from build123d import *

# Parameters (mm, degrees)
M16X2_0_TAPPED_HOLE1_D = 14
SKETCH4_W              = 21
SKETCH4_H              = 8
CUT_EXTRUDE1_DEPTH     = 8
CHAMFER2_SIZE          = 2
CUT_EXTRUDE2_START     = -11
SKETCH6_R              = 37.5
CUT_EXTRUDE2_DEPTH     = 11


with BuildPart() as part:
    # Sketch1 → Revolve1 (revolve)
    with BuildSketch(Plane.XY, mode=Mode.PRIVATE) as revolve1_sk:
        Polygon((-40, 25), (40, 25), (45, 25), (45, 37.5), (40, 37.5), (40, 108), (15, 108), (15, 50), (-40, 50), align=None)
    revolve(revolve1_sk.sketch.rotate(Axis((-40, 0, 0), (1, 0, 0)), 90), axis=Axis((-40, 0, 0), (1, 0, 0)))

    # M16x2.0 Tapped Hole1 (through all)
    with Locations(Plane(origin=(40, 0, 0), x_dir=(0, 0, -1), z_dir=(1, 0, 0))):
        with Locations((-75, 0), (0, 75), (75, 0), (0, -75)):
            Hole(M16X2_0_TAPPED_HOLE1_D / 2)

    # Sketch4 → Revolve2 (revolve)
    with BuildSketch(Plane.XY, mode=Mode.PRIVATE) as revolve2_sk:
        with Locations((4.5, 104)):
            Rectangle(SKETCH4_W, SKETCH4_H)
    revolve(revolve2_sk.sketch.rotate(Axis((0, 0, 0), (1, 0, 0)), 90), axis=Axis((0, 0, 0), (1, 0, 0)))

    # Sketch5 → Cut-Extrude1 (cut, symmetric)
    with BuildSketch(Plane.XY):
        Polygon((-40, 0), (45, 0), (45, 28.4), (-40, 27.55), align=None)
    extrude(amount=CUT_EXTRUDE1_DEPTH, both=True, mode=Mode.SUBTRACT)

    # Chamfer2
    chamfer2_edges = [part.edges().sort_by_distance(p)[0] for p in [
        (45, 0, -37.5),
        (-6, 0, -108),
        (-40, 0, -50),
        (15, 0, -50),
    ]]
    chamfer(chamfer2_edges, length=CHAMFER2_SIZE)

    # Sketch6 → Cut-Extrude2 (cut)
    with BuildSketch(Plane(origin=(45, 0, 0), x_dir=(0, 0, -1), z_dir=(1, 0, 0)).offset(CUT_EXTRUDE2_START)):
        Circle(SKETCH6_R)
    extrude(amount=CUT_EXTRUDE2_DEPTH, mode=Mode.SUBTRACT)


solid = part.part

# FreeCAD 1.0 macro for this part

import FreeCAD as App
import Part
import Sketcher

V = App.Vector
Q = App.Units.Quantity


def edges_at(feature, points):
    """Names of the edges that pass closest to the given points."""
    edges = feature.Shape.Edges
    near = lambda p: min(range(len(edges)), key=lambda i: edges[i].distToShape(Part.Vertex(*p))[0])
    return sorted({f"Edge{near(p) + 1}" for p in points})

doc = App.newDocument("Part")
body = doc.addObject("PartDesign::Body", "Body")

# Sketch on XY plane
sketch1 = doc.addObject("Sketcher::SketchObject", "Sketch")
body.addObject(sketch1)
sketch1.AttachmentSupport = (doc.XY_Plane, [""])
sketch1.MapMode = "FlatFace"
sketch1.addGeometry([
    Part.LineSegment(V(-40, 25, 0), V(45, 25, 0)),  # 0
    Part.LineSegment(V(45, 25, 0), V(45, 37.5, 0)),  # 1
    Part.LineSegment(V(45, 37.5, 0), V(40, 37.5, 0)),  # 2
    Part.LineSegment(V(40, 37.5, 0), V(40, 108, 0)),  # 3
    Part.LineSegment(V(40, 108, 0), V(15, 108, 0)),  # 4
    Part.LineSegment(V(15, 108, 0), V(15, 50, 0)),  # 5
    Part.LineSegment(V(15, 50, 0), V(-40, 50, 0)),  # 6
    Part.LineSegment(V(-40, 50, 0), V(-40, 25, 0)),  # 7
], False)
sketch1.addConstraint([
    Sketcher.Constraint("Coincident", 0, 2, 1, 1),
    Sketcher.Constraint("Coincident", 1, 2, 2, 1),
    Sketcher.Constraint("Coincident", 2, 2, 3, 1),
    Sketcher.Constraint("Coincident", 3, 2, 4, 1),
    Sketcher.Constraint("Coincident", 4, 2, 5, 1),
    Sketcher.Constraint("Coincident", 5, 2, 6, 1),
    Sketcher.Constraint("Coincident", 6, 2, 7, 1),
    Sketcher.Constraint("Coincident", 7, 2, 0, 1),
    Sketcher.Constraint("Horizontal", 0),
    Sketcher.Constraint("Vertical", 1),
    Sketcher.Constraint("Horizontal", 2),
    Sketcher.Constraint("Vertical", 3),
    Sketcher.Constraint("Horizontal", 4),
    Sketcher.Constraint("Vertical", 5),
    Sketcher.Constraint("Horizontal", 6),
    Sketcher.Constraint("Vertical", 7),
    Sketcher.Constraint("Equal", 4, 7),
    Sketcher.Constraint("DistanceX", 0, 1, 0, 2, Q("85 mm")),
    Sketcher.Constraint("DistanceX", 2, 2, 2, 1, Q("5 mm")),
    Sketcher.Constraint("DistanceX", 4, 2, 4, 1, Q("25 mm")),
    Sketcher.Constraint("DistanceY", 5, 2, 5, 1, Q("58 mm")),
    Sketcher.Constraint("DistanceY", 1, 1, 1, 2, Q("12.5 mm")),
    Sketcher.Constraint("DistanceX", -1, 1, 0, 2, Q("45 mm")),
    Sketcher.Constraint("DistanceY", -1, 1, 0, 2, Q("25 mm")),
])
revolution = doc.addObject("PartDesign::Revolution", "Revolution")
body.addObject(revolution)
revolution.Profile = sketch1
revolution.ReferenceAxis = (sketch1, ["H_Axis"])
revolution.Angle = 360

# Sketch on YZ plane
sketch2 = doc.addObject("Sketcher::SketchObject", "Sketch001")
body.addObject(sketch2)
sketch2.AttachmentSupport = (doc.YZ_Plane, [""])
sketch2.MapMode = "FlatFace"
sketch2.AttachmentOffset = App.Placement(V(0, 0, 40), App.Rotation())
sketch2.addGeometry([
    Part.Circle(V(0, 75, 0), V(0, 0, 1), 7),
    Part.Circle(V(75, 0, 0), V(0, 0, 1), 7),
    Part.Circle(V(0, -75, 0), V(0, 0, 1), 7),
    Part.Circle(V(-75, 0, 0), V(0, 0, 1), 7),
], False)
sketch2.addConstraint([
    Sketcher.Constraint("Equal", 0, 1),
    Sketcher.Constraint("Equal", 1, 2),
    Sketcher.Constraint("Equal", 2, 3),
    Sketcher.Constraint("Symmetric", 0, 3, 2, 3, -1, 1),
    Sketcher.Constraint("Symmetric", 1, 3, 3, 3, -1, 1),
    Sketcher.Constraint("PointOnObject", 0, 3, -2),
    Sketcher.Constraint("PointOnObject", 1, 3, -1),
    Sketcher.Constraint("Diameter", 0, Q("14 mm")),
    Sketcher.Constraint("DistanceY", -1, 1, 0, 3, Q("75 mm")),
    Sketcher.Constraint("DistanceX", -1, 1, 1, 3, Q("75 mm")),
])
doc.recompute()
hole = doc.addObject("PartDesign::Hole", "Hole")
body.addObject(hole)
hole.Profile = sketch2
hole.ThreadType = "None"
hole.Diameter = 14
hole.DepthType = "ThroughAll"

# Sketch on XY plane
sketch3 = doc.addObject("Sketcher::SketchObject", "Sketch002")
body.addObject(sketch3)
sketch3.AttachmentSupport = (doc.XY_Plane, [""])
sketch3.MapMode = "FlatFace"
sketch3.addGeometry([
    Part.LineSegment(V(-6, 108, 0), V(-6, 100, 0)),
    Part.LineSegment(V(-6, 100, 0), V(15, 100, 0)),
    Part.LineSegment(V(15, 100, 0), V(15, 108, 0)),
    Part.LineSegment(V(15, 108, 0), V(-6, 108, 0)),
], False)
sketch3.addConstraint([
    Sketcher.Constraint("Coincident", 0, 2, 1, 1),
    Sketcher.Constraint("Coincident", 1, 2, 2, 1),
    Sketcher.Constraint("Coincident", 2, 2, 3, 1),
    Sketcher.Constraint("Coincident", 3, 2, 0, 1),
    Sketcher.Constraint("Vertical", 0),
    Sketcher.Constraint("Horizontal", 1),
    Sketcher.Constraint("Vertical", 2),
    Sketcher.Constraint("Horizontal", 3),
    Sketcher.Constraint("DistanceX", 1, 1, 1, 2, Q("21 mm")),
    Sketcher.Constraint("DistanceY", 0, 2, 0, 1, Q("8 mm")),
    Sketcher.Constraint("DistanceX", 0, 2, -1, 1, Q("6 mm")),
    Sketcher.Constraint("DistanceY", -1, 1, 0, 2, Q("100 mm")),
])
revolution2 = doc.addObject("PartDesign::Revolution", "Revolution001")
body.addObject(revolution2)
revolution2.Profile = sketch3
revolution2.ReferenceAxis = (sketch3, ["H_Axis"])
revolution2.Angle = 360

# Sketch on XY plane
sketch4 = doc.addObject("Sketcher::SketchObject", "Sketch003")
body.addObject(sketch4)
sketch4.AttachmentSupport = (doc.XY_Plane, [""])
sketch4.MapMode = "FlatFace"
sketch4.addGeometry([
    Part.LineSegment(V(-40, 0, 0), V(45, 0, 0)),
    Part.LineSegment(V(45, 0, 0), V(45, 28.4, 0)),
    Part.LineSegment(V(45, 28.4, 0), V(-40, 27.55, 0)),
    Part.LineSegment(V(-40, 27.55, 0), V(-40, 0, 0)),
], False)
sketch4.addConstraint([
    Sketcher.Constraint("Coincident", 0, 2, 1, 1),
    Sketcher.Constraint("Coincident", 1, 2, 2, 1),
    Sketcher.Constraint("Coincident", 2, 2, 3, 1),
    Sketcher.Constraint("Coincident", 3, 2, 0, 1),
    Sketcher.Constraint("Horizontal", 0),
    Sketcher.Constraint("Vertical", 1),
    Sketcher.Constraint("Vertical", 3),
    Sketcher.Constraint("PointOnObject", 0, 2, -1),
    Sketcher.Constraint("DistanceX", 0, 1, 0, 2, Q("85 mm")),
    Sketcher.Constraint("DistanceY", 1, 1, 1, 2, Q("28.4 mm")),
    Sketcher.Constraint("DistanceX", -1, 1, 0, 2, Q("45 mm")),
    Sketcher.Constraint("DistanceY", 3, 2, 3, 1, Q("27.55 mm")),
])
pocket1 = doc.addObject("PartDesign::Pocket", "Pocket")
body.addObject(pocket1)
pocket1.Profile = sketch4
pocket1.Length = 16
pocket1.Midplane = True
doc.recompute()

chamfer = doc.addObject("PartDesign::Chamfer", "Chamfer")
body.addObject(chamfer)
chamfer.Base = (pocket1, edges_at(pocket1, [
    (45, 0, -37.5),
    (-6, 0, -108),
    (-40, 0, -50),
    (15, 0, -50),
]))
chamfer.Size = 2

# Sketch on YZ plane
sketch5 = doc.addObject("Sketcher::SketchObject", "Sketch004")
body.addObject(sketch5)
sketch5.AttachmentSupport = (doc.YZ_Plane, [""])
sketch5.MapMode = "FlatFace"
sketch5.AttachmentOffset = App.Placement(V(0, 0, 34), App.Rotation())
sketch5.addGeometry(Part.Circle(V(0, 0, 0), V(0, 0, 1), 37.5), False)
sketch5.addConstraint([
    Sketcher.Constraint("Coincident", 0, 3, -1, 1),
    Sketcher.Constraint("Diameter", 0, Q("75 mm")),
])
pocket2 = doc.addObject("PartDesign::Pocket", "Pocket001")
body.addObject(pocket2)
pocket2.Profile = sketch5
pocket2.Length = 11
pocket2.Reversed = True

doc.recompute()
